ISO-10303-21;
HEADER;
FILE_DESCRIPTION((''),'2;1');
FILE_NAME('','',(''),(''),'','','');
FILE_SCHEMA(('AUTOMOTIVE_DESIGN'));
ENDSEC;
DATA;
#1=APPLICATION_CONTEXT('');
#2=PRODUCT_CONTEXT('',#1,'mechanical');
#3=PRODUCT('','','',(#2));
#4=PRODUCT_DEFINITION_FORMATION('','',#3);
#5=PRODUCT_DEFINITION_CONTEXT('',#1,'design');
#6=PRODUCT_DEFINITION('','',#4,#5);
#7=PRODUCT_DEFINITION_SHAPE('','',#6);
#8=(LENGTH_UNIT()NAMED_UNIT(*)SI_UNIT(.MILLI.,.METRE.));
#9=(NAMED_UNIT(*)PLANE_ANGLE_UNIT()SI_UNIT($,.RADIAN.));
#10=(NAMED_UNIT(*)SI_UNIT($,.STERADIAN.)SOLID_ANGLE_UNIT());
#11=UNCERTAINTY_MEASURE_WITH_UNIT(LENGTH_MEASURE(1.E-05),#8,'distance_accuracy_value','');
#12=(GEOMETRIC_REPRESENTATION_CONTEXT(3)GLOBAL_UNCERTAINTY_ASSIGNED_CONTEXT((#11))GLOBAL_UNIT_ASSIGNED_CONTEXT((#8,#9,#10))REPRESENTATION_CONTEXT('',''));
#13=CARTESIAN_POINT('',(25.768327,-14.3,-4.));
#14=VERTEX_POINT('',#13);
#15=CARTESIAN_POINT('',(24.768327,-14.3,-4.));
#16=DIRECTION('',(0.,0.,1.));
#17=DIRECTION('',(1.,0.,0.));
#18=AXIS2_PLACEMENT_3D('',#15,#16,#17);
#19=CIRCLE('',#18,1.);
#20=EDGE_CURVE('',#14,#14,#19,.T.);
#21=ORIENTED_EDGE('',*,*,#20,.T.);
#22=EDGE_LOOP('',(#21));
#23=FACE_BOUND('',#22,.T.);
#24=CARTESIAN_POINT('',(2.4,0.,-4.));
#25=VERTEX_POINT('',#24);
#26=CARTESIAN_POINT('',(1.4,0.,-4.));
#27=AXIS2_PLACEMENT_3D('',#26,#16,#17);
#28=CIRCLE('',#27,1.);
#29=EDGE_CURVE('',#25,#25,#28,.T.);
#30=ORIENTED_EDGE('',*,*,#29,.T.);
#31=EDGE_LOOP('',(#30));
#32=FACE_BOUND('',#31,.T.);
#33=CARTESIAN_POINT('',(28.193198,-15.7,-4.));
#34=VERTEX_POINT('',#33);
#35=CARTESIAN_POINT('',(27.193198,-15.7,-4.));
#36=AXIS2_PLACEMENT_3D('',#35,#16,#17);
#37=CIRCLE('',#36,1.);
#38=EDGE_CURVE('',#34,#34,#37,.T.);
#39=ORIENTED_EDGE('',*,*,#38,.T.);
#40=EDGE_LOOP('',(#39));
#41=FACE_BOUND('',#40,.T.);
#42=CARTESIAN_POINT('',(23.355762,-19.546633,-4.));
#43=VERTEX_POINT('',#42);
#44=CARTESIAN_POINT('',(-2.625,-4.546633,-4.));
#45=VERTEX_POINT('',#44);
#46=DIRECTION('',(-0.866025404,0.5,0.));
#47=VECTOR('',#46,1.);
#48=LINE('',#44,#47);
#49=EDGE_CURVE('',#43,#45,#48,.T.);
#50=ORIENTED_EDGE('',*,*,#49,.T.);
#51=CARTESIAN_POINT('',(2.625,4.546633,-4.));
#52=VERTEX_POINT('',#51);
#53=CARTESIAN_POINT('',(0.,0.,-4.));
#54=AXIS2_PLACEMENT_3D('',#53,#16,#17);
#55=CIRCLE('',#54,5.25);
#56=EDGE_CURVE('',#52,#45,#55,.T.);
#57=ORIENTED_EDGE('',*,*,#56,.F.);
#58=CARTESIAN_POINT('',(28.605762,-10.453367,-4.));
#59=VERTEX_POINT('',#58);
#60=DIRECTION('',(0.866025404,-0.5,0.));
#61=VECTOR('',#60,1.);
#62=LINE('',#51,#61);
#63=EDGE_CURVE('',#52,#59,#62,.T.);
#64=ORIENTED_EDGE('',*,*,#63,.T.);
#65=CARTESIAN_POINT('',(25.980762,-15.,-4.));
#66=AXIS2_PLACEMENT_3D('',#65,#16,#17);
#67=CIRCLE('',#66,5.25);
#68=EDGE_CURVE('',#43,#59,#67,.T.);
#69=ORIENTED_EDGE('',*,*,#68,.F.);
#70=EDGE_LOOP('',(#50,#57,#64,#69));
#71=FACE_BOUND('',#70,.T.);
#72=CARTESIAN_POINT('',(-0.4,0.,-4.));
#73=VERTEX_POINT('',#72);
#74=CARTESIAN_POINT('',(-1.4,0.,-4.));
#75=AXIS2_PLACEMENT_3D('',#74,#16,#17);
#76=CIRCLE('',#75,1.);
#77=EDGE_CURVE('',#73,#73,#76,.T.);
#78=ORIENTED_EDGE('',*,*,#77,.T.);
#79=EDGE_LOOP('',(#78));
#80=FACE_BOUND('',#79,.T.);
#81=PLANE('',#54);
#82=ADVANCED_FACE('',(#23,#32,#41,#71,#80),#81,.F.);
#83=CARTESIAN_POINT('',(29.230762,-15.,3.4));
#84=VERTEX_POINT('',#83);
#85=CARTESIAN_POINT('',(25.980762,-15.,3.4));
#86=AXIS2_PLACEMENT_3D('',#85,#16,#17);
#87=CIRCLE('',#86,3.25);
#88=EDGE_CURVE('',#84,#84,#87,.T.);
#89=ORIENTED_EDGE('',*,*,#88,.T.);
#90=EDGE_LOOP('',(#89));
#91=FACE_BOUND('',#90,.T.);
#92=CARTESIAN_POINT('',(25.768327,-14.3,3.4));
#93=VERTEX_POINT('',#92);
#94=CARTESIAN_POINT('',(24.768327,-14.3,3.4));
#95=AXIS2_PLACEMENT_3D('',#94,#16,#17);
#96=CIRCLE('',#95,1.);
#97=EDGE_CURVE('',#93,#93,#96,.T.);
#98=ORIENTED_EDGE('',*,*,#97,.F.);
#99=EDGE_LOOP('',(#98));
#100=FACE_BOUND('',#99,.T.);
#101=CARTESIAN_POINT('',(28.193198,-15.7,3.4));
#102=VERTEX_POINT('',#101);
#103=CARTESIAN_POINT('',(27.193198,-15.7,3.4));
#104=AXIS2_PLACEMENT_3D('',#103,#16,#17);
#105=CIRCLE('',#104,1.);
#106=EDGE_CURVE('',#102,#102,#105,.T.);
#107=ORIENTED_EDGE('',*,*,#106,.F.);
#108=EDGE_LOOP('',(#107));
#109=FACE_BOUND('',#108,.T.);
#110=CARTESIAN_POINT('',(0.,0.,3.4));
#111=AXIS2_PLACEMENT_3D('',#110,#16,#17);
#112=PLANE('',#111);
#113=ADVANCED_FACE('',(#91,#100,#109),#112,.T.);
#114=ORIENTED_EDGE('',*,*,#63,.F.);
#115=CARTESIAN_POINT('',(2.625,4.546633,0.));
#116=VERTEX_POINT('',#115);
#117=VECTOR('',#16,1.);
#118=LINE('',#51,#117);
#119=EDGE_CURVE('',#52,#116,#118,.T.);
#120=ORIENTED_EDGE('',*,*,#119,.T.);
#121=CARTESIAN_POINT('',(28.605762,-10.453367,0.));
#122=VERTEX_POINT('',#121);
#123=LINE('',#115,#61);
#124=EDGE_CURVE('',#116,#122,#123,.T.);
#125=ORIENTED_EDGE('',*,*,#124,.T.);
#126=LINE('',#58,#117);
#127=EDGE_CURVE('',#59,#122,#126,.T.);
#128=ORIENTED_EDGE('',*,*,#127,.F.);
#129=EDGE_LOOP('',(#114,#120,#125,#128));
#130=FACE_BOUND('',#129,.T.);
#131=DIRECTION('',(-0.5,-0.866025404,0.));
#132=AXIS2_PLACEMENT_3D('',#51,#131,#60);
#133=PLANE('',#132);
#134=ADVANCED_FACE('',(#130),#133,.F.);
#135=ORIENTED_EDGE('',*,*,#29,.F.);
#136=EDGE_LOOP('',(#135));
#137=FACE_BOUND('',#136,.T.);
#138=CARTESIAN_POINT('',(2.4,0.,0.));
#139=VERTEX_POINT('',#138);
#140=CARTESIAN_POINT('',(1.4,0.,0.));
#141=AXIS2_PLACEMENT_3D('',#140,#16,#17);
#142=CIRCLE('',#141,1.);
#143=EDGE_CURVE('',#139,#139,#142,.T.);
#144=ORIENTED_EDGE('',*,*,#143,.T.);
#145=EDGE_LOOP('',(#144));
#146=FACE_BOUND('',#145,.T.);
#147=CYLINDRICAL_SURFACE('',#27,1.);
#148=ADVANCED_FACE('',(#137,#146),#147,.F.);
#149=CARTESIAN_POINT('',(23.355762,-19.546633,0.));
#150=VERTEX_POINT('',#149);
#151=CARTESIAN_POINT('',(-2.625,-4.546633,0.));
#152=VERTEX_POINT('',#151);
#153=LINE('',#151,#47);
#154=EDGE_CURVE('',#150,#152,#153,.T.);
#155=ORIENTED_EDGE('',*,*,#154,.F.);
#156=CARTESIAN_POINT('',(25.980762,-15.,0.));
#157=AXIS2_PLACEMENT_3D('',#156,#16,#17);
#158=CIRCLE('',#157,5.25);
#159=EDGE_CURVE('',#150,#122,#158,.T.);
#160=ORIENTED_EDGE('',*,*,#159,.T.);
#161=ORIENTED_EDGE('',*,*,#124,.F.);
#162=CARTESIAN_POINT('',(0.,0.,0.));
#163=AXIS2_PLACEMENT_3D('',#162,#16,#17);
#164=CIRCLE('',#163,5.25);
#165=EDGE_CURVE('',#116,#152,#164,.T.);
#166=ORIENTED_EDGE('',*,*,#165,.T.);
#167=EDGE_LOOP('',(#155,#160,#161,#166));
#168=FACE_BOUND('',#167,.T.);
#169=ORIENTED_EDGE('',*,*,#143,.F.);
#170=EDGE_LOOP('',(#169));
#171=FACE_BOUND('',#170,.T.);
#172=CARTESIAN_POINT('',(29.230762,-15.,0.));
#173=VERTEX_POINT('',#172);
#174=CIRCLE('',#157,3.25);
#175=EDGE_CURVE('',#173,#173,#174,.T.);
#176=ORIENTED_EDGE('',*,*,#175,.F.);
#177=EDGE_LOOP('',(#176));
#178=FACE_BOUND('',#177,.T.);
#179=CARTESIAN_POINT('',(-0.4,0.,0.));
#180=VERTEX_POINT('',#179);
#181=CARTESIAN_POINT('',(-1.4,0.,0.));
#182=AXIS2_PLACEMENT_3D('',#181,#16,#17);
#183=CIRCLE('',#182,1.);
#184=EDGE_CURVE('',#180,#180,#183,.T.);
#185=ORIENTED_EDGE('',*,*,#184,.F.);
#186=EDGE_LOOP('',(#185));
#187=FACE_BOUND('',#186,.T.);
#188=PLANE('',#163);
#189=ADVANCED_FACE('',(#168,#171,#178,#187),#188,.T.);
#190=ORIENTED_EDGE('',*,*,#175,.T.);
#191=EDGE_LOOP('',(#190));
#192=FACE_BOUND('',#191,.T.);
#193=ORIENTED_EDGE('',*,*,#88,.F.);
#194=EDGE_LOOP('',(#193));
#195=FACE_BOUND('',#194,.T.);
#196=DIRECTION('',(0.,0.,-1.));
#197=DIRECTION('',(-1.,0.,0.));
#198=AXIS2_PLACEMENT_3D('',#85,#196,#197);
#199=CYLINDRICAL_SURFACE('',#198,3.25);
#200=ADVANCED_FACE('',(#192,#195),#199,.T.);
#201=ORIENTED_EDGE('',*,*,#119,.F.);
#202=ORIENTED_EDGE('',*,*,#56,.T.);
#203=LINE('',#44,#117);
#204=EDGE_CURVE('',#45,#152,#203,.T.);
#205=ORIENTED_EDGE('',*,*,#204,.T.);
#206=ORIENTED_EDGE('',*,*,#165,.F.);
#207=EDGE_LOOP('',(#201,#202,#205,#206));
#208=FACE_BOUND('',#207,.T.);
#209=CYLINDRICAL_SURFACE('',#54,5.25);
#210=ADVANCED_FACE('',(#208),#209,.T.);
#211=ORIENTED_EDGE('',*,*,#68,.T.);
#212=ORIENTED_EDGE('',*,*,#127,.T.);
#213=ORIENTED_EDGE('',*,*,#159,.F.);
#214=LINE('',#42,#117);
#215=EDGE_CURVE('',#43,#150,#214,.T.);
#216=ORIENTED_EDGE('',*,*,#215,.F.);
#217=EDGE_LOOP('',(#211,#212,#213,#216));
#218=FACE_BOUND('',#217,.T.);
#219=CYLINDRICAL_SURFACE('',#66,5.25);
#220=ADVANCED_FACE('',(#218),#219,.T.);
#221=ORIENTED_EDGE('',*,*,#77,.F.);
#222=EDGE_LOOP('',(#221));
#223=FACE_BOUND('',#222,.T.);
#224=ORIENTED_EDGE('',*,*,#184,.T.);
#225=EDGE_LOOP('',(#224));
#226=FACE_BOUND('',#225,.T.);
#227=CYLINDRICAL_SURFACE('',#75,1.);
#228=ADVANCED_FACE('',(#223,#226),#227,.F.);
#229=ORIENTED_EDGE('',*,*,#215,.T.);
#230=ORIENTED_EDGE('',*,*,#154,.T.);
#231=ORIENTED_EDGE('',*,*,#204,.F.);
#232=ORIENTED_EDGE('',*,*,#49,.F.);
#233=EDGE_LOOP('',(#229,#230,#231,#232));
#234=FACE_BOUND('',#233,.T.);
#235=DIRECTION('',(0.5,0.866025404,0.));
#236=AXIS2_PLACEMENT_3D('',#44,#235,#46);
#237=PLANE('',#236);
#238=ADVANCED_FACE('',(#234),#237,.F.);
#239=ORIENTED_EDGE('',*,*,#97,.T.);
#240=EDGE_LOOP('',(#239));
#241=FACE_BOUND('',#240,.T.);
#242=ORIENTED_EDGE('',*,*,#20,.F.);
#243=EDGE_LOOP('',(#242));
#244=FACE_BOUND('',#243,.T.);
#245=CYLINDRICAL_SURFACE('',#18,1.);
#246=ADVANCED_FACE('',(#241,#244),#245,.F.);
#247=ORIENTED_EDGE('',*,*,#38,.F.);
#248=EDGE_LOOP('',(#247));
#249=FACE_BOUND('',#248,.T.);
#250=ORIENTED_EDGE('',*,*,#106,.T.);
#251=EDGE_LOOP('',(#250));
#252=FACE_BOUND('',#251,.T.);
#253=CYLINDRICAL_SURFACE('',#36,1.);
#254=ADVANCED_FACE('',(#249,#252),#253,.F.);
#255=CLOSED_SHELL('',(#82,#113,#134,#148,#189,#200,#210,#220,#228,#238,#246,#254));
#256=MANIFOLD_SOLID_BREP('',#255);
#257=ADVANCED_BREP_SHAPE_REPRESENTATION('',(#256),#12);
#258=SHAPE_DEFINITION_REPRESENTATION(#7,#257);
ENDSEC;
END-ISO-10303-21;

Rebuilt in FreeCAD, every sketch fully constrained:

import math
import FreeCAD as App
import Part
import Sketcher
from FreeCAD import Vector
Q = App.Units.Quantity

doc = App.newDocument("Part")
body = doc.addObject("PartDesign::Body", "Body")

# Sketch on XY plane
sketch1 = doc.addObject("Sketcher::SketchObject", "Sketch")
body.addObject(sketch1)
sketch1.AttachmentSupport = (doc.XY_Plane, [""])
sketch1.MapMode = "FlatFace"
sketch1.addGeometry(Part.LineSegment(Vector(-2.6, -4.5, 0), Vector(23.4, -19.5, 0)), False)
sketch1.addGeometry(Part.ArcOfCircle(Part.Circle(Vector(26, -15, 0), Vector(0, 0, 1), 5.2), math.radians(-120), math.radians(60)), False)
sketch1.addGeometry(Part.LineSegment(Vector(28.6, -10.5, 0), Vector(2.6, 4.5, 0)), False)
sketch1.addGeometry(Part.ArcOfCircle(Part.Circle(Vector(0, 0, 0), Vector(0, 0, 1), 5.2), math.radians(60), math.radians(240)), False)
sketch1.addGeometry(Part.Circle(Vector(1.4, 0, 0), Vector(0, 0, 1), 1), False)
sketch1.addGeometry(Part.Circle(Vector(-1.4, 0, 0), Vector(0, 0, 1), 1), False)
sketch1.addGeometry(Part.Circle(Vector(24.8, -14.3, 0), Vector(0, 0, 1), 1), False)
sketch1.addGeometry(Part.Circle(Vector(27.2, -15.7, 0), Vector(0, 0, 1), 1), False)
sketch1.addConstraint(Sketcher.Constraint("Tangent", 0, 2, 1, 1))
sketch1.addConstraint(Sketcher.Constraint("Tangent", 1, 2, 2, 1))
sketch1.addConstraint(Sketcher.Constraint("Tangent", 2, 2, 3, 1))
sketch1.addConstraint(Sketcher.Constraint("Tangent", 3, 2, 0, 1))
sketch1.addConstraint(Sketcher.Constraint("Coincident", 3, 3, -1, 1))
sketch1.addConstraint(Sketcher.Constraint("Equal", 1, 3))
sketch1.addConstraint(Sketcher.Constraint("Equal", 4, 5))
sketch1.addConstraint(Sketcher.Constraint("Equal", 5, 6))
sketch1.addConstraint(Sketcher.Constraint("Equal", 6, 7))
sketch1.addConstraint(Sketcher.Constraint("Symmetric", 4, 3, 5, 3, -1, 1))
sketch1.addConstraint(Sketcher.Constraint("PointOnObject", 4, 3, -1))
sketch1.addConstraint(Sketcher.Constraint("Diameter", 4, 2.0))
sketch1.addConstraint(Sketcher.Constraint("Angle", 0, Q("-30 deg")))
sketch1.addConstraint(Sketcher.Constraint("Radius", 1, 5.25))
sketch1.addConstraint(Sketcher.Constraint("Distance", 0, 30.0))
sketch1.addConstraint(Sketcher.Constraint("DistanceX", -1, 1, 4, 3, 1.4))
sketch1.addConstraint(Sketcher.Constraint("DistanceY", 6, 3, -1, 1, 14.3))
sketch1.addConstraint(Sketcher.Constraint("DistanceY", 7, 3, -1, 1, 15.7))
sketch1.addConstraint(Sketcher.Constraint("DistanceX", 6, 3, 7, 3, 2.424871))
sketch1.addConstraint(Sketcher.Constraint("DistanceX", -1, 1, 6, 3, 24.768327))
pad1 = doc.addObject("PartDesign::Pad", "Pad")
body.addObject(pad1)
pad1.Profile = sketch1
pad1.Length = 4
pad1.Reversed = True

# Sketch on XY plane
sketch2 = doc.addObject("Sketcher::SketchObject", "Sketch001")
body.addObject(sketch2)
sketch2.AttachmentSupport = (doc.XY_Plane, [""])
sketch2.MapMode = "FlatFace"
sketch2.AttachmentOffset = App.Placement(Vector(0, 0, 3.4), App.Rotation())
sketch2.addGeometry(Part.Circle(Vector(26, -15, 0), Vector(0, 0, 1), 3.2), False)
sketch2.addGeometry(Part.Circle(Vector(27.2, -15.7, 0), Vector(0, 0, 1), 1), False)
sketch2.addGeometry(Part.Circle(Vector(24.8, -14.3, 0), Vector(0, 0, 1), 1), False)
sketch2.addConstraint(Sketcher.Constraint("Equal", 1, 2))
sketch2.addConstraint(Sketcher.Constraint("Diameter", 1, 2.0))
sketch2.addConstraint(Sketcher.Constraint("Diameter", 0, 6.5))
sketch2.addConstraint(Sketcher.Constraint("DistanceY", 0, 3, -1, 1, 15.0))
sketch2.addConstraint(Sketcher.Constraint("DistanceY", 1, 3, -1, 1, 15.7))
sketch2.addConstraint(Sketcher.Constraint("DistanceY", 2, 3, -1, 1, 14.3))
sketch2.addConstraint(Sketcher.Constraint("DistanceX", 2, 3, 1, 3, 2.424871))
sketch2.addConstraint(Sketcher.Constraint("DistanceX", -1, 1, 0, 3, 25.980762))
sketch2.addConstraint(Sketcher.Constraint("DistanceX", -1, 1, 1, 3, 27.193198))
pad2 = doc.addObject("PartDesign::Pad", "Pad001")
body.addObject(pad2)
pad2.Profile = sketch2
pad2.Length = 3.4
pad2.Reversed = True

doc.recompute()
